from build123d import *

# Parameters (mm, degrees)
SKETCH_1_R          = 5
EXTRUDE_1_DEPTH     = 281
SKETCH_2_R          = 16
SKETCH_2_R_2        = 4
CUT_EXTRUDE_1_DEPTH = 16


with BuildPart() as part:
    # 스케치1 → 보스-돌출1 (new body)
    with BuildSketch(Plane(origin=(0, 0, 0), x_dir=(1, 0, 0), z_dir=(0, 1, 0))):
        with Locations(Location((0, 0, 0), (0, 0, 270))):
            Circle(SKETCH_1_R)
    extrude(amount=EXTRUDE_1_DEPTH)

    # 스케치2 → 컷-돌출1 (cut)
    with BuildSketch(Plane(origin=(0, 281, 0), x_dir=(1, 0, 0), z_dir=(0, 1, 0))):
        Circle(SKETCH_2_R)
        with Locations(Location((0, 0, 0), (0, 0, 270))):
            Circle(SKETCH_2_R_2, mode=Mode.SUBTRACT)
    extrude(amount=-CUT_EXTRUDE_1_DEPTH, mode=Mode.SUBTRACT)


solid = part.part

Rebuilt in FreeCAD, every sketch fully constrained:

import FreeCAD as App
import Part
import Sketcher
Q = App.Units.Quantity

doc = App.newDocument("Part")
body = doc.addObject("PartDesign::Body", "Body")

# Sketch on XZ plane
sketch1 = body.newObject("Sketcher::SketchObject", "Sketch")
sketch1.AttachmentSupport = (doc.getObject("XZ_Plane"), [""])
sketch1.MapMode = "FlatFace"
sketch1.addGeometry(Part.Circle(App.Vector(0, 0, 0), App.Vector(0, 0, 1), 5), False)
sketch1.addConstraint([
    Sketcher.Constraint("Coincident", 0, 3, -1, 1),
    Sketcher.Constraint("Diameter", 0, Q("10 mm")),
])
pad1 = body.newObject("PartDesign::Pad", "Pad")
pad1.Profile = sketch1
pad1.Length = 281
pad1.Reversed = True

# Sketch on XZ plane
sketch2 = body.newObject("Sketcher::SketchObject", "Sketch001")
sketch2.AttachmentSupport = (doc.getObject("XZ_Plane"), [""])
sketch2.MapMode = "FlatFace"
sketch2.AttachmentOffset = App.Placement(App.Vector(0, 0, -281), App.Rotation())
sketch2.addGeometry([
    Part.Circle(App.Vector(0, 0, 0), App.Vector(0, 0, 1), 16),
    Part.Circle(App.Vector(0, 0, 0), App.Vector(0, 0, 1), 4),
], False)
sketch2.addConstraint([
    Sketcher.Constraint("Coincident", 0, 3, -1, 1),
    Sketcher.Constraint("Coincident", 1, 3, -1, 1),
    Sketcher.Constraint("Diameter", 0, Q("32 mm")),
    Sketcher.Constraint("Diameter", 1, Q("8 mm")),
])
pocket1 = body.newObject("PartDesign::Pocket", "Pocket")
pocket1.Profile = sketch2
pocket1.Length = 16
pocket1.Reversed = True

doc.recompute()
